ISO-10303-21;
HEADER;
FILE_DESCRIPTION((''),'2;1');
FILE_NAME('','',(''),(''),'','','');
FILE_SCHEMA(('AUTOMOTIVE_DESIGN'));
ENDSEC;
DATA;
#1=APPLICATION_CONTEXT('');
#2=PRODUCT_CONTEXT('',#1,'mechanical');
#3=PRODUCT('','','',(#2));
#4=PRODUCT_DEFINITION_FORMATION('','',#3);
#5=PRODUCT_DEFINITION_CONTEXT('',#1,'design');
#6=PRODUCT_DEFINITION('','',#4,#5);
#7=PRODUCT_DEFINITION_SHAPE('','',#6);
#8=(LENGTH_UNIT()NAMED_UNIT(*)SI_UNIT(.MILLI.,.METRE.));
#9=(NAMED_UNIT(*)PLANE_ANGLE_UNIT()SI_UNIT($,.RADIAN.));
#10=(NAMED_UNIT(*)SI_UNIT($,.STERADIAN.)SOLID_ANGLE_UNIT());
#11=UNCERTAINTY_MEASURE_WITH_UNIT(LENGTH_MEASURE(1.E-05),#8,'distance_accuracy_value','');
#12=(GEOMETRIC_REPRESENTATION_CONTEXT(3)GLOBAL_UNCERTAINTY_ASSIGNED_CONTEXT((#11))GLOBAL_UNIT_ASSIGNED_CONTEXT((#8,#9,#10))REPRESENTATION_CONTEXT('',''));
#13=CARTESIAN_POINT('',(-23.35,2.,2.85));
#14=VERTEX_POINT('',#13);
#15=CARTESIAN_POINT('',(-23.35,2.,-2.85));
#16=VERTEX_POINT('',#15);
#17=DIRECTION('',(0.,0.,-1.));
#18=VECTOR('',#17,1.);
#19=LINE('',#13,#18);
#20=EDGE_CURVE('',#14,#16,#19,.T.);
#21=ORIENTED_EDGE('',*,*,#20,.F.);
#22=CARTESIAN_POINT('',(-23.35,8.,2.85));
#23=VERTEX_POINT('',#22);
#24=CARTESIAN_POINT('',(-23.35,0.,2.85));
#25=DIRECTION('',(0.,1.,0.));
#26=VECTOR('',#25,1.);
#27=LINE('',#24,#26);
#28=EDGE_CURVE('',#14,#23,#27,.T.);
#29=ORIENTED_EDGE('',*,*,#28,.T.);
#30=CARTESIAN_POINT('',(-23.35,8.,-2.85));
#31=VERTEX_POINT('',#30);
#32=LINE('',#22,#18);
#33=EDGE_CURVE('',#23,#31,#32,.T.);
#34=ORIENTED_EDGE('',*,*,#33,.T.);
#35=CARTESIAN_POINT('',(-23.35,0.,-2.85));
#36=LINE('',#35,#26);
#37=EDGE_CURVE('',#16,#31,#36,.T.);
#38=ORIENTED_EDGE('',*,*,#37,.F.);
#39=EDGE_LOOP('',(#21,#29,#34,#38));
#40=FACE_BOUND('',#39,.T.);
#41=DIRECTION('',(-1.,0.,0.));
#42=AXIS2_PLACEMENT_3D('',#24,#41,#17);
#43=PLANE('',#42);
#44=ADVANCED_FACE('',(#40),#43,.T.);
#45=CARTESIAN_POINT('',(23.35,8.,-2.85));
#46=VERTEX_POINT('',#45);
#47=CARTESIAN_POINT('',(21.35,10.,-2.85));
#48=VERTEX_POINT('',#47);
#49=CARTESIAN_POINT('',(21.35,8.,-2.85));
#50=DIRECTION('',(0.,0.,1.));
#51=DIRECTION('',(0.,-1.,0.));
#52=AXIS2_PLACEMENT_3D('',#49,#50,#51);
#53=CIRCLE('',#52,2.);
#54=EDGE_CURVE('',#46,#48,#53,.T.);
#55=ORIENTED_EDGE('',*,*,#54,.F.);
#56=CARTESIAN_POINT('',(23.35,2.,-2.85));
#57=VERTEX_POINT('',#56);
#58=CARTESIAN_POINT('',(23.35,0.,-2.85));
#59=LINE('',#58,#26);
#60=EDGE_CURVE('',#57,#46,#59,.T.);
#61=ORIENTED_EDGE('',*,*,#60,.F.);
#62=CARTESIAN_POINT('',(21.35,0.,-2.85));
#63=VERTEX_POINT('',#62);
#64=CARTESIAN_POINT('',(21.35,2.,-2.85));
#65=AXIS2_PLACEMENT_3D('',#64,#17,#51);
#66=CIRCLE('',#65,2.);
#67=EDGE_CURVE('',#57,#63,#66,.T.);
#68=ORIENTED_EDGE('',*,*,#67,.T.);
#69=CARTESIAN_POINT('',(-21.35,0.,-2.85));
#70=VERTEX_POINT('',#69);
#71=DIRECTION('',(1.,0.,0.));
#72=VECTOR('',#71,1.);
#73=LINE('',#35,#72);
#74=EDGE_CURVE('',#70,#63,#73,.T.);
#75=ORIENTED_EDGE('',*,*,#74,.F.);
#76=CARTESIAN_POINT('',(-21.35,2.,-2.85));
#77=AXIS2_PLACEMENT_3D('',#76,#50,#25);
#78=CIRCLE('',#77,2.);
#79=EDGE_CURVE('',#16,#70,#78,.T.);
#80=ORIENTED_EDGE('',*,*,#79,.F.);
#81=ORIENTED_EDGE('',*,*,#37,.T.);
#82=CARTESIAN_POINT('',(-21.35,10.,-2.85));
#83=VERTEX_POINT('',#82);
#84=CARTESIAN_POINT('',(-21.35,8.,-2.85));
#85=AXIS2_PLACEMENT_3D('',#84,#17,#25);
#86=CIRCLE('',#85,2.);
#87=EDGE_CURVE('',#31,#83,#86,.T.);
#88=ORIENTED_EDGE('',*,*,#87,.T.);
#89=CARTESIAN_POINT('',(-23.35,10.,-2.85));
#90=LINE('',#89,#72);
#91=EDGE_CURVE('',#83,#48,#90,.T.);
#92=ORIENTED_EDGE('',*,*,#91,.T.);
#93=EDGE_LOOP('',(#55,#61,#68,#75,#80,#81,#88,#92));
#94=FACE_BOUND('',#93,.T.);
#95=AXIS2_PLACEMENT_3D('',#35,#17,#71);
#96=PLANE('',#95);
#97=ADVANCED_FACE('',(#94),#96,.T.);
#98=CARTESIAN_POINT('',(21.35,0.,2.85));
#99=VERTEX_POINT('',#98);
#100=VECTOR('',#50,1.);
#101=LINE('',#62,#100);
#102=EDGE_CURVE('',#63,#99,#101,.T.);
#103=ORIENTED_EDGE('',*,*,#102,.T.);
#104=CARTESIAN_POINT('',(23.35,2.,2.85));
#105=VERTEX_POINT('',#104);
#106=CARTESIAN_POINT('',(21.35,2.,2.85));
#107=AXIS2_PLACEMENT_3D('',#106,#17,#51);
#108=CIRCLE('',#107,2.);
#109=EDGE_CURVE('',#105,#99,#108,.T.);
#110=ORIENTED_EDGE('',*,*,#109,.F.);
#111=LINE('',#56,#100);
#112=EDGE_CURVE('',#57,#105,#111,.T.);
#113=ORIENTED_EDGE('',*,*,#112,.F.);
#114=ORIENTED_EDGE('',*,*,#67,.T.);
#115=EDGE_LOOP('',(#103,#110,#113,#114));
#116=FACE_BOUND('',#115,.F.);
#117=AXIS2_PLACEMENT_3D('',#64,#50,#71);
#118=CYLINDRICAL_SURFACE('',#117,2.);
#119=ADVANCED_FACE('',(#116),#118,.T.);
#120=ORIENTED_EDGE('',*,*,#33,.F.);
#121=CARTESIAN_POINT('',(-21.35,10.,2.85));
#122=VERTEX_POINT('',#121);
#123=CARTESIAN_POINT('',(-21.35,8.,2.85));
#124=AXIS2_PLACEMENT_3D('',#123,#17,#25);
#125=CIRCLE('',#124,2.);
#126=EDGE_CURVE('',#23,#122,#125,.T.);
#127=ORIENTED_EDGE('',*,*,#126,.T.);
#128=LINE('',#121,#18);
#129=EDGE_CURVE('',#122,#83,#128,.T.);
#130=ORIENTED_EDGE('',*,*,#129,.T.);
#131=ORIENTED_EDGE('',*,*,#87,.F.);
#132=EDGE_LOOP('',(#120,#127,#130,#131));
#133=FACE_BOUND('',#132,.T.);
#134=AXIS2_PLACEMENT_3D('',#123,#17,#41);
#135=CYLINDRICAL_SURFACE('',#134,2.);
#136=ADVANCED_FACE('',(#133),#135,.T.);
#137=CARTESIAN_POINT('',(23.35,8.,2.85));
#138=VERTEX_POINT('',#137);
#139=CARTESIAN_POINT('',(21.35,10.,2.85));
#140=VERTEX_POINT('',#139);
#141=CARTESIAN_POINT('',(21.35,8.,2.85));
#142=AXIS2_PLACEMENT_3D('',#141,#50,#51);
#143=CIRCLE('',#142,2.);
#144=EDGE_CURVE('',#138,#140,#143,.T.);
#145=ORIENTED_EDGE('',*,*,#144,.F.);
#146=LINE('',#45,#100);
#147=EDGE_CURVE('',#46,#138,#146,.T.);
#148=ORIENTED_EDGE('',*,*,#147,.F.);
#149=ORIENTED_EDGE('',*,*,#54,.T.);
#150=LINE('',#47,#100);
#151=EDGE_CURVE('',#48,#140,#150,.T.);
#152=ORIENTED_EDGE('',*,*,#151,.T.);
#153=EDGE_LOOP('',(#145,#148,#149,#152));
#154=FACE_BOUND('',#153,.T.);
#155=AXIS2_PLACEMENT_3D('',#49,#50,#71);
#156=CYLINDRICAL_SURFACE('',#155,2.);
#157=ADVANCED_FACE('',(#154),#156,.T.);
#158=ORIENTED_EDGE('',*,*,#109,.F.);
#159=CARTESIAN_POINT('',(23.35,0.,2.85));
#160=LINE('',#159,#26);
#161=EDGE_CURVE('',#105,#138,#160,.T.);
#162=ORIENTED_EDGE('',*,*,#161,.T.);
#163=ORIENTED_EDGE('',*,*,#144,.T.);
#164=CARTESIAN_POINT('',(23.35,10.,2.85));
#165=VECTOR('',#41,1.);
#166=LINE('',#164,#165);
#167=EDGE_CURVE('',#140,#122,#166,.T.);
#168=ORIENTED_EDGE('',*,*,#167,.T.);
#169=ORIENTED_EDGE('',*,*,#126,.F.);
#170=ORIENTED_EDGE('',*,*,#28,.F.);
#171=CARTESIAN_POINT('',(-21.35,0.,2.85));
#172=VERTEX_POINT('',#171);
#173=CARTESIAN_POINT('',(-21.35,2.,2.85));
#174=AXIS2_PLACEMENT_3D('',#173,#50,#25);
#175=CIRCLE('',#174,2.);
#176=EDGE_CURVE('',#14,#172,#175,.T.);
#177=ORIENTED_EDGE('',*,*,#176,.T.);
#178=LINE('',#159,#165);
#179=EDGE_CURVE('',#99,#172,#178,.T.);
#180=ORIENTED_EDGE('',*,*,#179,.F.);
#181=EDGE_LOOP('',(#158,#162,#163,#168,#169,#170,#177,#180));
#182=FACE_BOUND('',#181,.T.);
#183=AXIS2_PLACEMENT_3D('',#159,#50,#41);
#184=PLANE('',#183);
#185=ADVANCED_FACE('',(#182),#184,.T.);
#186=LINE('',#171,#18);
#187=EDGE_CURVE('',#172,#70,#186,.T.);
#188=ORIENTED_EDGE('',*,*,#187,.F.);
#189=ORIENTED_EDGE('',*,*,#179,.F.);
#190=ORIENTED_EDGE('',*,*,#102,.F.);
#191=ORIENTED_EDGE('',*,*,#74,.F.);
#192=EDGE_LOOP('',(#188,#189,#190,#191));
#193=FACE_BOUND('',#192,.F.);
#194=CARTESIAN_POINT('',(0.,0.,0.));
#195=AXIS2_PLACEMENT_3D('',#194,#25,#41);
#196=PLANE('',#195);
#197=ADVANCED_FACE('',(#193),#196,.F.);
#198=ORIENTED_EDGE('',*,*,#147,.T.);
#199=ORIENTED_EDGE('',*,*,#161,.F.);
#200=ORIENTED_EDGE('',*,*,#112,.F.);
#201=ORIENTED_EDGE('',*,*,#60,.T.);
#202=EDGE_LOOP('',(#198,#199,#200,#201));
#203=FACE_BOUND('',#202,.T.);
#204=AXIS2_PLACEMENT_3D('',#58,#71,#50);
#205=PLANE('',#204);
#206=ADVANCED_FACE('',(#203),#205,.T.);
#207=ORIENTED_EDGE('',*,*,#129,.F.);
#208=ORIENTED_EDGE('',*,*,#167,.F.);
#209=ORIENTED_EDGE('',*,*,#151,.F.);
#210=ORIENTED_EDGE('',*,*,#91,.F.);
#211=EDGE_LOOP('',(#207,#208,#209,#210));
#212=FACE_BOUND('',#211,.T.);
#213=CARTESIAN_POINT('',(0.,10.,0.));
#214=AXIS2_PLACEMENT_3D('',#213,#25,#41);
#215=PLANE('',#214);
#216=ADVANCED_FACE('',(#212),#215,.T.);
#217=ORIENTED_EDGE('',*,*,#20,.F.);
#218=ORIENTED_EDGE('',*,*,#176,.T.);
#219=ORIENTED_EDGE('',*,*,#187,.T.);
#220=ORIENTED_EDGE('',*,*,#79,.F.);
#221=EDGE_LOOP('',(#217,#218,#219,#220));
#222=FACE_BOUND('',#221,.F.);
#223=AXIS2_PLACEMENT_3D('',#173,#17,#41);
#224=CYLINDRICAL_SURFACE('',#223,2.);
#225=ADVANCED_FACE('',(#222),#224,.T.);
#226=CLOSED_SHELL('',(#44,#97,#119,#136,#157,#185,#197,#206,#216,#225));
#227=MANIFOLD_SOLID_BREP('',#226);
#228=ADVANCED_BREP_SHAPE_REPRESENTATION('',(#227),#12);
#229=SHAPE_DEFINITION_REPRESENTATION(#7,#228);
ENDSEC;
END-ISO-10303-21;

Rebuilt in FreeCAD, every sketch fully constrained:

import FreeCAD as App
import Part
import Sketcher

V = App.Vector
Q = App.Units.Quantity


def edges_at(feature, points):
    """Names of the edges that pass closest to the given points."""
    edges = feature.Shape.Edges
    near = lambda p: min(range(len(edges)), key=lambda i: edges[i].distToShape(Part.Vertex(*p))[0])
    return sorted({f"Edge{near(p) + 1}" for p in points})


def add_polygon(sketch, points):
    """Adds a closed chain of lines whose ends are joined by coincident constraints."""
    first, n = sketch.GeometryCount, len(points)
    for a, b in zip(points, points[1:] + points[:1]):
        sketch.addGeometry(Part.LineSegment(App.Vector(*a, 0), App.Vector(*b, 0)), False)
    for i in range(n):
        sketch.addConstraint(Sketcher.Constraint("Coincident", first + i, 2, first + (i + 1) % n, 1))

doc = App.newDocument("Part")
body = doc.addObject("PartDesign::Body", "Body")

# Sketch on XZ plane
sketch1 = body.newObject("Sketcher::SketchObject", "Sketch")
sketch1.AttachmentSupport = (doc.getObject("XZ_Plane"), [""])
sketch1.MapMode = "FlatFace"
add_polygon(sketch1, [(-23.35, 2.85), (23.35, 2.85), (23.35, -2.85), (-23.35, -2.85)])  # lines 0-3
sketch1.addConstraint([
    Sketcher.Constraint("Horizontal", 0),
    Sketcher.Constraint("Vertical", 1),
    Sketcher.Constraint("Horizontal", 2),
    Sketcher.Constraint("Vertical", 3),
    Sketcher.Constraint("Symmetric", 0, 2, 2, 2, -1, 1),
    Sketcher.Constraint("DistanceX", 0, 1, 0, 2, Q("46.7 mm")),
    Sketcher.Constraint("DistanceY", 1, 2, 1, 1, Q("5.7 mm")),
])
pad1 = body.newObject("PartDesign::Pad", "Pad")
pad1.Profile = sketch1
pad1.Length = 10
pad1.Reversed = True
doc.recompute()

fillet = body.newObject("PartDesign::Fillet", "Fillet")
fillet.Base = (pad1, edges_at(pad1, [
    (-23.35, 0, 0),
    (-23.35, 10, 0),
    (23.35, 0, 0),
    (23.35, 10, 0),
]))
fillet.Radius = 2

doc.recompute()
